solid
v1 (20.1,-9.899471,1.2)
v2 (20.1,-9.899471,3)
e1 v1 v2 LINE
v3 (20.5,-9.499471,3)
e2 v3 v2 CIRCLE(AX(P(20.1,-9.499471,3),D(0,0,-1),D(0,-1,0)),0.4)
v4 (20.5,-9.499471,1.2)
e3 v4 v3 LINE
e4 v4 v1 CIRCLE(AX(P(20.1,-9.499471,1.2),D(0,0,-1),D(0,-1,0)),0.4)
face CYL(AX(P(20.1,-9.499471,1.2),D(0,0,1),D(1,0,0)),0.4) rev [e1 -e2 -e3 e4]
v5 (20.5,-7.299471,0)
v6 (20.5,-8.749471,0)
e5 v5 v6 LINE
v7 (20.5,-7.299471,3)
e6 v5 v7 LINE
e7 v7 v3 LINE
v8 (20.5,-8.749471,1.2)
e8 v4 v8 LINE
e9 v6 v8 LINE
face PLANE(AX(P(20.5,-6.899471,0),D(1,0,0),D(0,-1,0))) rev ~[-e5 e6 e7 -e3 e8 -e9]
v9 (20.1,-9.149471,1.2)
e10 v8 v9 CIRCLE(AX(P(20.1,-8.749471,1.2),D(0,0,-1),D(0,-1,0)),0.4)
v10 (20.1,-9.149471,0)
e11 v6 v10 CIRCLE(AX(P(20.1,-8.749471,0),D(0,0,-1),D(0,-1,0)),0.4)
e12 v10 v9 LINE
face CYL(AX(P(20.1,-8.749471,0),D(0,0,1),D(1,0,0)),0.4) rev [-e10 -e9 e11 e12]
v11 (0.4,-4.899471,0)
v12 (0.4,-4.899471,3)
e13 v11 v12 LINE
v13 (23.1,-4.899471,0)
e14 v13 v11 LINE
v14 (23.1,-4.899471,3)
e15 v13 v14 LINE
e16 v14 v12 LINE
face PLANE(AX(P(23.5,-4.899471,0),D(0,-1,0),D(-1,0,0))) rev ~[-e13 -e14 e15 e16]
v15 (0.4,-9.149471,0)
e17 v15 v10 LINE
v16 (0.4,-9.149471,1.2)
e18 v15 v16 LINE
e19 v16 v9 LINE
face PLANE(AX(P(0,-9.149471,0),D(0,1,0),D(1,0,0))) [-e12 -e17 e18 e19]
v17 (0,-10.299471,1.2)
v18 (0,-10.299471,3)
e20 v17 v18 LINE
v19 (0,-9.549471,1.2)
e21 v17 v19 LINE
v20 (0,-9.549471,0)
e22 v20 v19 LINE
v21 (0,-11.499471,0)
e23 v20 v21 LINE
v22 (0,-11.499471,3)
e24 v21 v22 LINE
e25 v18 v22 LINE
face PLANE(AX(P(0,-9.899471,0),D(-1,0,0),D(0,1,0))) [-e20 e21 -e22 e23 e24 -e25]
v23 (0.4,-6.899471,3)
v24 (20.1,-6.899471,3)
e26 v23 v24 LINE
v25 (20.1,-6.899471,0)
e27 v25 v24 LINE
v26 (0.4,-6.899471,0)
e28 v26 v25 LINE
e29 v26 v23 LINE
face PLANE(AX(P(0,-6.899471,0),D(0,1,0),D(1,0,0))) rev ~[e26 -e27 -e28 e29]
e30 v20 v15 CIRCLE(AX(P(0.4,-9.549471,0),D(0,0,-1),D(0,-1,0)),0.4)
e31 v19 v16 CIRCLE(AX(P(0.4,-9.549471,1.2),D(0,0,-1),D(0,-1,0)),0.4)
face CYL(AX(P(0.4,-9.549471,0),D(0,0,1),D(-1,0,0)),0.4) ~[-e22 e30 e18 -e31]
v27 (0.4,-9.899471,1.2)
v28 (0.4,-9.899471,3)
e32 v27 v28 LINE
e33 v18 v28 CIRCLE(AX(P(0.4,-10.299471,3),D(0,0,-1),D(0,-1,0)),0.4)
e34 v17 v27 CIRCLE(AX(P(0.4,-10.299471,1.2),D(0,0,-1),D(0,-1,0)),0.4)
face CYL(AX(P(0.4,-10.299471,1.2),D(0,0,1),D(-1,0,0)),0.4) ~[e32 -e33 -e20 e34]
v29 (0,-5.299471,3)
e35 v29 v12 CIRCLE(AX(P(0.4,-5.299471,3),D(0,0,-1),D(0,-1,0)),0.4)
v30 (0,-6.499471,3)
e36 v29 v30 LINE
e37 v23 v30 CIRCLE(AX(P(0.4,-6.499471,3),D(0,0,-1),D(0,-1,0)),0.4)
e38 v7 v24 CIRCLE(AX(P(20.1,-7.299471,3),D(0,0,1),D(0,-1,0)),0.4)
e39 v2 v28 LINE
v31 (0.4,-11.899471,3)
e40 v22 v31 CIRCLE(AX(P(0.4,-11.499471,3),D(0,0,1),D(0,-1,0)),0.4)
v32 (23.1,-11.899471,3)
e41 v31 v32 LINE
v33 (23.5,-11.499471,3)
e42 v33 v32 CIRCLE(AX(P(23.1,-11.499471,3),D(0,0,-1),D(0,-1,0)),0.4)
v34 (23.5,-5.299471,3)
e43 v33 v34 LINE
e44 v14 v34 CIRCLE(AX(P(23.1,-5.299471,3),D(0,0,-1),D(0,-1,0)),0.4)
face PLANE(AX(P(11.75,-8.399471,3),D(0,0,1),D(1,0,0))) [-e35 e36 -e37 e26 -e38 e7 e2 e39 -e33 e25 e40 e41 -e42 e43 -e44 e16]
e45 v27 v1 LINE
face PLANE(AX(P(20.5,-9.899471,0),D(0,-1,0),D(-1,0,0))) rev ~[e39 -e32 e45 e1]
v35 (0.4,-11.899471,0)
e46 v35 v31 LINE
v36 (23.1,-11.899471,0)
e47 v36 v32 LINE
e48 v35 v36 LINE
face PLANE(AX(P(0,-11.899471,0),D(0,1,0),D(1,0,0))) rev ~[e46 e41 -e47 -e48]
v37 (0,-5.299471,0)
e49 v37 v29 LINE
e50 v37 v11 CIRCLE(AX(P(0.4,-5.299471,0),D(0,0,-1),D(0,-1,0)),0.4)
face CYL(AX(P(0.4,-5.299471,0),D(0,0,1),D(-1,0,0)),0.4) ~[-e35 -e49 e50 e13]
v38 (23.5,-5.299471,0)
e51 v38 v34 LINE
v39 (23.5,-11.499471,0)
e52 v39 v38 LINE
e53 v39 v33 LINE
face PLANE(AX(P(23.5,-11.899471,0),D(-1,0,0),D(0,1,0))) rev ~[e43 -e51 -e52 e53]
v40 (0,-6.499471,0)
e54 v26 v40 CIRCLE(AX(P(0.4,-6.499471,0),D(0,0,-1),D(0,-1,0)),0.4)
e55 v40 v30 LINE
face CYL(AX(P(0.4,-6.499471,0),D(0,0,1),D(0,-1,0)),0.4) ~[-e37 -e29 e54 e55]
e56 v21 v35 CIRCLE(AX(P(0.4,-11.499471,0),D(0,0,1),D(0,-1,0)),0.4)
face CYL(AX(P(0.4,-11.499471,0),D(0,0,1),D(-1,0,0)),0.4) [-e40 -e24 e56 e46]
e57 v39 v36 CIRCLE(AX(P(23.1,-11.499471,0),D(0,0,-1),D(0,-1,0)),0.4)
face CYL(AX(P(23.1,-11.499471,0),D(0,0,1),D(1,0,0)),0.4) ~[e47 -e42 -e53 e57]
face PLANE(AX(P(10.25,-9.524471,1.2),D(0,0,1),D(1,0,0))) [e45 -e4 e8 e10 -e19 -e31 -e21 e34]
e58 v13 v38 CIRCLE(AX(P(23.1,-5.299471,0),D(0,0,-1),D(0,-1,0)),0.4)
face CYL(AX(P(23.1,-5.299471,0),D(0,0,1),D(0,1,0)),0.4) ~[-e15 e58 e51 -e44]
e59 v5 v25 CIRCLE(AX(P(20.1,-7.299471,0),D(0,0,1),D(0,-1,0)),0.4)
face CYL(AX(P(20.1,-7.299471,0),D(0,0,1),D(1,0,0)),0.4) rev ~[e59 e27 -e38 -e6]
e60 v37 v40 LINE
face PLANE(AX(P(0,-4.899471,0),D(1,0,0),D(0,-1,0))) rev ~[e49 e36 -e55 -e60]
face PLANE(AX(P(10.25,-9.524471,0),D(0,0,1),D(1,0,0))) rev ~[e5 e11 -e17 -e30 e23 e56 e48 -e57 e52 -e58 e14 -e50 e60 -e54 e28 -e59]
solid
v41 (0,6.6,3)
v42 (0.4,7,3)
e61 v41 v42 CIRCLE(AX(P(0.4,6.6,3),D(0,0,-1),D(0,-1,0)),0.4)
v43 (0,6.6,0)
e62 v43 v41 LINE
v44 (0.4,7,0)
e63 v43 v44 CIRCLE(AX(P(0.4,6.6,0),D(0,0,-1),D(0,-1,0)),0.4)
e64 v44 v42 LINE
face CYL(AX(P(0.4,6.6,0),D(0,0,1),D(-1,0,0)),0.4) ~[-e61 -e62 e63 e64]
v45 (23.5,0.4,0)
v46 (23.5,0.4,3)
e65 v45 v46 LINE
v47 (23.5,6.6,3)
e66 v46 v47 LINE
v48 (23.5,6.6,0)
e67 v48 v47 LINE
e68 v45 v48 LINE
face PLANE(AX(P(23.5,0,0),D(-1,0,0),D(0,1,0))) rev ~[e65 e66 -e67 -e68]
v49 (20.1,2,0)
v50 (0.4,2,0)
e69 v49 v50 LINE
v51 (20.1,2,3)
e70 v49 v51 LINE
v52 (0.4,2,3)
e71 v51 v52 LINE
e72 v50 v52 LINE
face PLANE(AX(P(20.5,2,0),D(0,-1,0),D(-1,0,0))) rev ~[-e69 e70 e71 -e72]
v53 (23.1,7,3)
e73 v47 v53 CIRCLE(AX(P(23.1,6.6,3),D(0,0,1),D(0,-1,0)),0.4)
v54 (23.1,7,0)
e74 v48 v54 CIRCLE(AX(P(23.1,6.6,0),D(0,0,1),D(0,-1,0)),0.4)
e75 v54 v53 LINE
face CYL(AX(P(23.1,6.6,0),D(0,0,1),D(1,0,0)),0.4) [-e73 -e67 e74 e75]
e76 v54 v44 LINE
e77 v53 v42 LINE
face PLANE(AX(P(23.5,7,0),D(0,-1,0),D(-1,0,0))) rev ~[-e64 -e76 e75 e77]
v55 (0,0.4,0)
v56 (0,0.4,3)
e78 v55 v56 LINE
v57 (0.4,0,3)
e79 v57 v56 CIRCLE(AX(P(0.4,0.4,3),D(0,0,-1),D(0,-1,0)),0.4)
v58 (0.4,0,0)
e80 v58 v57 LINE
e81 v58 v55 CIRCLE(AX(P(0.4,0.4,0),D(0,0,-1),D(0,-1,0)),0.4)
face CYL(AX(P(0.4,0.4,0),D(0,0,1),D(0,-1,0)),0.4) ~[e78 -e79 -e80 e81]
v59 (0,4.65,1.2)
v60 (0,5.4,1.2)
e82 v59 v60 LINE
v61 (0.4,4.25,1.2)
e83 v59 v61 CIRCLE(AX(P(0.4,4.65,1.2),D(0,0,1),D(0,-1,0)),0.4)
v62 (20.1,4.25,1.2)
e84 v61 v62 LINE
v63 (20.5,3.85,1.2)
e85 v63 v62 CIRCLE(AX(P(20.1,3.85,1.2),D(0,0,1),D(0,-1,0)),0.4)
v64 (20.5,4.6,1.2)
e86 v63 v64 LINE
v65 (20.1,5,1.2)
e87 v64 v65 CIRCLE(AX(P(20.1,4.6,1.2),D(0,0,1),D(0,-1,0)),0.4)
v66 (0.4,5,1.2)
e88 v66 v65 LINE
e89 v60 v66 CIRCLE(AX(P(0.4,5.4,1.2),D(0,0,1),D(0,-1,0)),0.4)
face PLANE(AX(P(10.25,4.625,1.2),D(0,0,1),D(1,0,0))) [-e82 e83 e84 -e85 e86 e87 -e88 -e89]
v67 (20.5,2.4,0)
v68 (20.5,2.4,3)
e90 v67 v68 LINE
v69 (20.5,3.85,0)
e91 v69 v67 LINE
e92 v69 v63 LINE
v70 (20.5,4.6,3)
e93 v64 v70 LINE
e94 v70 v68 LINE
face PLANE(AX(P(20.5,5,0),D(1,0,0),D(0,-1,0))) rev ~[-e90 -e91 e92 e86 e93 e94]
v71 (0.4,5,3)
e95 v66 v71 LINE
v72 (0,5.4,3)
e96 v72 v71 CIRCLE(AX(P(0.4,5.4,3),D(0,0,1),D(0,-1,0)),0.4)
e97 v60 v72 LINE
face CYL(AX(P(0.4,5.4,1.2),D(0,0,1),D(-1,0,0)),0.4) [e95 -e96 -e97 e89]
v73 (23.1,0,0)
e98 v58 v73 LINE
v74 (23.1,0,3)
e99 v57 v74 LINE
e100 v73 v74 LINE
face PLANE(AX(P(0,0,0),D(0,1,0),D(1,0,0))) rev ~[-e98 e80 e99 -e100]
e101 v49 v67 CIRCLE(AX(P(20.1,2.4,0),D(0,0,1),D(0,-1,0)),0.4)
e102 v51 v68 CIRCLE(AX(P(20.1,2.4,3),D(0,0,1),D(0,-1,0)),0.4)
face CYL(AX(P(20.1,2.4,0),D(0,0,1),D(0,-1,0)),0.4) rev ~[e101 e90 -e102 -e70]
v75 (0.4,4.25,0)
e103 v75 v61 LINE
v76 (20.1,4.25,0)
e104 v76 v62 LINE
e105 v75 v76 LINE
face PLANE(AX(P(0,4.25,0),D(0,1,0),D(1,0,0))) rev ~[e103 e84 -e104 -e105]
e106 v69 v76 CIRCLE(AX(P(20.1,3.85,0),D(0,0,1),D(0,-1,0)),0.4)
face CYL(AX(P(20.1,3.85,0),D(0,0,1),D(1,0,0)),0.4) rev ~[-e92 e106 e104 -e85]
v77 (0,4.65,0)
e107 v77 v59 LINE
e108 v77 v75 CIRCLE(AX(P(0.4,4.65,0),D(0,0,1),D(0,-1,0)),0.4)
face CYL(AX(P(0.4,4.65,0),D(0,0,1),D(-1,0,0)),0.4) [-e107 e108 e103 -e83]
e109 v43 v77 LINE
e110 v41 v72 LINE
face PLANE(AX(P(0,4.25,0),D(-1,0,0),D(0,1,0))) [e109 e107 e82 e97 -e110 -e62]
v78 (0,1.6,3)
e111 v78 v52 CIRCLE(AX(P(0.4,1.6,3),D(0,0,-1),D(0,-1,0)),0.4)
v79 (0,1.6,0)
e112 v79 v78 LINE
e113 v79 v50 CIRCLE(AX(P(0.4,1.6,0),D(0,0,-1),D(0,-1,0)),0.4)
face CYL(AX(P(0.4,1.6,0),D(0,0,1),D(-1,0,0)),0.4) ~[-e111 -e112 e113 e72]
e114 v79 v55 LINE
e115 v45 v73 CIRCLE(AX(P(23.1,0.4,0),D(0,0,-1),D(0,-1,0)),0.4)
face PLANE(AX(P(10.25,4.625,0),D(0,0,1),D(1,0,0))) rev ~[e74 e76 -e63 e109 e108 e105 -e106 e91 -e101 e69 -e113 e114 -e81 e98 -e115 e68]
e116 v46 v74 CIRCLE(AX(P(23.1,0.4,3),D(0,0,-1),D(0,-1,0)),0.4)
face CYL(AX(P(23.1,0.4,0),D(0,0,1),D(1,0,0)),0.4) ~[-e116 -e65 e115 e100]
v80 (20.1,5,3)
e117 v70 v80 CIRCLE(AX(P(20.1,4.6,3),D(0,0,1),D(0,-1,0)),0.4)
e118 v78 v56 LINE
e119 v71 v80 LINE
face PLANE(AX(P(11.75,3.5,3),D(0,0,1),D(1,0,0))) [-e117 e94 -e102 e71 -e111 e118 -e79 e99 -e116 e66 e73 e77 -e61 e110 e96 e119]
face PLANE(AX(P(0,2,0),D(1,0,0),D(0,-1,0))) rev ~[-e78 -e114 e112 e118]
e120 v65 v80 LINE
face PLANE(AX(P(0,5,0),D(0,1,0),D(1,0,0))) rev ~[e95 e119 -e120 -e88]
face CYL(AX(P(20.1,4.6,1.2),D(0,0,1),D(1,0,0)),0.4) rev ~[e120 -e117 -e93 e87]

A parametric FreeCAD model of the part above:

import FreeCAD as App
import Part
import Sketcher
Q = App.Units.Quantity


def edges_at(feature, points):
    """Names of the edges that pass closest to the given points."""
    edges = feature.Shape.Edges
    near = lambda p: min(range(len(edges)), key=lambda i: edges[i].distToShape(Part.Vertex(*p))[0])
    return sorted({f"Edge{near(p) + 1}" for p in points})


def add_polygon(sketch, points):
    """Adds a closed chain of lines whose ends are joined by coincident constraints."""
    first, n = sketch.GeometryCount, len(points)
    for a, b in zip(points, points[1:] + points[:1]):
        sketch.addGeometry(Part.LineSegment(App.Vector(*a, 0), App.Vector(*b, 0)), False)
    for i in range(n):
        sketch.addConstraint(Sketcher.Constraint("Coincident", first + i, 2, first + (i + 1) % n, 1))

doc = App.newDocument("Part")
body = doc.addObject("PartDesign::Body", "Body")

# Sketch on XY plane
sketch1 = doc.addObject("Sketcher::SketchObject", "Sketch")
body.addObject(sketch1)
sketch1.AttachmentSupport = (doc.XY_Plane, [""])
sketch1.MapMode = "FlatFace"
add_polygon(sketch1, [(0, 2), (0, 0), (23.5, 0), (23.5, 7), (0, 7), (0, 5), (20.5, 5), (20.5, 2)])  # lines 0-7
sketch1.addConstraint(Sketcher.Constraint("Vertical", 0))
sketch1.addConstraint(Sketcher.Constraint("Horizontal", 1))
sketch1.addConstraint(Sketcher.Constraint("Vertical", 2))
sketch1.addConstraint(Sketcher.Constraint("Horizontal", 3))
sketch1.addConstraint(Sketcher.Constraint("Vertical", 4))
sketch1.addConstraint(Sketcher.Constraint("Horizontal", 5))
sketch1.addConstraint(Sketcher.Constraint("Vertical", 6))
sketch1.addConstraint(Sketcher.Constraint("Horizontal", 7))
sketch1.addConstraint(Sketcher.Constraint("Coincident", 0, 2, -1, 1))
sketch1.addConstraint(Sketcher.Constraint("PointOnObject", 3, 2, -2))
sketch1.addConstraint(Sketcher.Constraint("Equal", 0, 4))
sketch1.addConstraint(Sketcher.Constraint("DistanceY", 0, 2, 0, 1, Q("2 mm")))
sketch1.addConstraint(Sketcher.Constraint("DistanceY", 2, 1, 2, 2, Q("7 mm")))
sketch1.addConstraint(Sketcher.Constraint("DistanceX", 1, 1, 1, 2, Q("23.5 mm")))
sketch1.addConstraint(Sketcher.Constraint("DistanceX", 5, 1, 5, 2, Q("20.5 mm")))
pad1 = doc.addObject("PartDesign::Pad", "Pad")
body.addObject(pad1)
pad1.Profile = sketch1
pad1.Length = 3
body2 = doc.addObject("PartDesign::Body", "Body001")

# Sketch on XY plane
sketch2 = doc.addObject("Sketcher::SketchObject", "Sketch001")
body2.addObject(sketch2)
sketch2.AttachmentSupport = (doc.getObject("XY_Plane001"), [""])
sketch2.MapMode = "FlatFace"
add_polygon(sketch2, [(20.5, -9.9), (0, -9.9), (0, -11.9), (23.5, -11.9), (23.5, -4.9), (0, -4.9), (0, -6.9), (20.5, -6.9)])  # lines 0-7
sketch2.addConstraint(Sketcher.Constraint("Horizontal", 0))
sketch2.addConstraint(Sketcher.Constraint("Vertical", 1))
sketch2.addConstraint(Sketcher.Constraint("Horizontal", 2))
sketch2.addConstraint(Sketcher.Constraint("Vertical", 3))
sketch2.addConstraint(Sketcher.Constraint("Horizontal", 4))
sketch2.addConstraint(Sketcher.Constraint("Vertical", 5))
sketch2.addConstraint(Sketcher.Constraint("Horizontal", 6))
sketch2.addConstraint(Sketcher.Constraint("Vertical", 7))
sketch2.addConstraint(Sketcher.Constraint("PointOnObject", 0, 2, -2))
sketch2.addConstraint(Sketcher.Constraint("PointOnObject", 4, 2, -2))
sketch2.addConstraint(Sketcher.Constraint("Equal", 1, 5))
sketch2.addConstraint(Sketcher.Constraint("DistanceY", 1, 2, 1, 1, Q("2 mm")))
sketch2.addConstraint(Sketcher.Constraint("DistanceY", 3, 1, 3, 2, Q("7 mm")))
sketch2.addConstraint(Sketcher.Constraint("DistanceX", 0, 2, 0, 1, Q("20.5 mm")))
sketch2.addConstraint(Sketcher.Constraint("DistanceX", 2, 1, 2, 2, Q("23.5 mm")))
sketch2.addConstraint(Sketcher.Constraint("DistanceY", 0, 2, -1, 1, Q("9.899471 mm")))
pad2 = doc.addObject("PartDesign::Pad", "Pad001")
body2.addObject(pad2)
pad2.Profile = sketch2
pad2.Length = 3
body.AllowCompound = True
doc.recompute()

boolean = doc.addObject("PartDesign::Boolean", "Boolean")
body.addObject(boolean)
boolean.Type = "Fuse"
boolean.addObjects([body2])

# Sketch on XY plane
sketch3 = doc.addObject("Sketcher::SketchObject", "Sketch002")
body.addObject(sketch3)
sketch3.AttachmentSupport = (doc.XY_Plane, [""])
sketch3.MapMode = "FlatFace"
add_polygon(sketch3, [(0, -9.1), (0, -9.9), (20.5, -9.9), (20.5, -9.1)])  # lines 0-3
add_polygon(sketch3, [(0, 5), (0, 4.2), (20.5, 4.2), (20.5, 5)])  # lines 4-7
sketch3.addConstraint(Sketcher.Constraint("Vertical", 0))
sketch3.addConstraint(Sketcher.Constraint("Horizontal", 1))
sketch3.addConstraint(Sketcher.Constraint("Vertical", 2))
sketch3.addConstraint(Sketcher.Constraint("Horizontal", 3))
sketch3.addConstraint(Sketcher.Constraint("Vertical", 4))
sketch3.addConstraint(Sketcher.Constraint("Horizontal", 5))
sketch3.addConstraint(Sketcher.Constraint("Vertical", 6))
sketch3.addConstraint(Sketcher.Constraint("Horizontal", 7))
sketch3.addConstraint(Sketcher.Constraint("PointOnObject", 0, 2, -2))
sketch3.addConstraint(Sketcher.Constraint("PointOnObject", 4, 2, -2))
sketch3.addConstraint(Sketcher.Constraint("Vertical", 2, 2, 5, 2))
sketch3.addConstraint(Sketcher.Constraint("Equal", 2, 4))
sketch3.addConstraint(Sketcher.Constraint("DistanceX", 1, 1, 1, 2, Q("20.5 mm")))
sketch3.addConstraint(Sketcher.Constraint("DistanceY", -1, 1, 6, 2, Q("5 mm")))
sketch3.addConstraint(Sketcher.Constraint("DistanceY", 0, 2, 0, 1, Q("0.75 mm")))
sketch3.addConstraint(Sketcher.Constraint("DistanceY", 0, 2, -1, 1, Q("9.899471 mm")))
pad3 = doc.addObject("PartDesign::Pad", "Pad002")
body.addObject(pad3)
pad3.Profile = sketch3
pad3.Length = 1.2
doc.recompute()

fillet = doc.addObject("PartDesign::Fillet", "Fillet")
body.addObject(fillet)
fillet.Base = (pad3, edges_at(pad3, [
    (0, 5, 2.1),
    (0, 7, 1.5),
    (23.5, 7, 1.5),
    (23.5, 0, 1.5),
    (0, 0, 1.5),
    (0, 2, 1.5),
    (20.5, 2, 1.5),
    (20.5, 5, 2.1),
    (0, 4.25, 0.6),
    (20.5, 4.25, 0.6),
]))
fillet.Radius = 0.4
doc.recompute()

fillet2 = doc.addObject("PartDesign::Fillet", "Fillet001")
body.addObject(fillet2)
fillet2.Base = (fillet, edges_at(fillet, [
    (23.5, -4.899, 1.5),
    (23.5, -11.899, 1.5),
    (0, -11.899, 1.5),
    (0, -9.899, 2.1),
    (20.5, -9.899, 2.1),
    (20.5, -6.899, 1.5),
    (0, -6.899, 1.5),
    (0, -4.899, 1.5),
    (0, -9.149, 0.6),
    (20.5, -9.149, 0.6),
]))
fillet2.Radius = 0.4

doc.recompute()
